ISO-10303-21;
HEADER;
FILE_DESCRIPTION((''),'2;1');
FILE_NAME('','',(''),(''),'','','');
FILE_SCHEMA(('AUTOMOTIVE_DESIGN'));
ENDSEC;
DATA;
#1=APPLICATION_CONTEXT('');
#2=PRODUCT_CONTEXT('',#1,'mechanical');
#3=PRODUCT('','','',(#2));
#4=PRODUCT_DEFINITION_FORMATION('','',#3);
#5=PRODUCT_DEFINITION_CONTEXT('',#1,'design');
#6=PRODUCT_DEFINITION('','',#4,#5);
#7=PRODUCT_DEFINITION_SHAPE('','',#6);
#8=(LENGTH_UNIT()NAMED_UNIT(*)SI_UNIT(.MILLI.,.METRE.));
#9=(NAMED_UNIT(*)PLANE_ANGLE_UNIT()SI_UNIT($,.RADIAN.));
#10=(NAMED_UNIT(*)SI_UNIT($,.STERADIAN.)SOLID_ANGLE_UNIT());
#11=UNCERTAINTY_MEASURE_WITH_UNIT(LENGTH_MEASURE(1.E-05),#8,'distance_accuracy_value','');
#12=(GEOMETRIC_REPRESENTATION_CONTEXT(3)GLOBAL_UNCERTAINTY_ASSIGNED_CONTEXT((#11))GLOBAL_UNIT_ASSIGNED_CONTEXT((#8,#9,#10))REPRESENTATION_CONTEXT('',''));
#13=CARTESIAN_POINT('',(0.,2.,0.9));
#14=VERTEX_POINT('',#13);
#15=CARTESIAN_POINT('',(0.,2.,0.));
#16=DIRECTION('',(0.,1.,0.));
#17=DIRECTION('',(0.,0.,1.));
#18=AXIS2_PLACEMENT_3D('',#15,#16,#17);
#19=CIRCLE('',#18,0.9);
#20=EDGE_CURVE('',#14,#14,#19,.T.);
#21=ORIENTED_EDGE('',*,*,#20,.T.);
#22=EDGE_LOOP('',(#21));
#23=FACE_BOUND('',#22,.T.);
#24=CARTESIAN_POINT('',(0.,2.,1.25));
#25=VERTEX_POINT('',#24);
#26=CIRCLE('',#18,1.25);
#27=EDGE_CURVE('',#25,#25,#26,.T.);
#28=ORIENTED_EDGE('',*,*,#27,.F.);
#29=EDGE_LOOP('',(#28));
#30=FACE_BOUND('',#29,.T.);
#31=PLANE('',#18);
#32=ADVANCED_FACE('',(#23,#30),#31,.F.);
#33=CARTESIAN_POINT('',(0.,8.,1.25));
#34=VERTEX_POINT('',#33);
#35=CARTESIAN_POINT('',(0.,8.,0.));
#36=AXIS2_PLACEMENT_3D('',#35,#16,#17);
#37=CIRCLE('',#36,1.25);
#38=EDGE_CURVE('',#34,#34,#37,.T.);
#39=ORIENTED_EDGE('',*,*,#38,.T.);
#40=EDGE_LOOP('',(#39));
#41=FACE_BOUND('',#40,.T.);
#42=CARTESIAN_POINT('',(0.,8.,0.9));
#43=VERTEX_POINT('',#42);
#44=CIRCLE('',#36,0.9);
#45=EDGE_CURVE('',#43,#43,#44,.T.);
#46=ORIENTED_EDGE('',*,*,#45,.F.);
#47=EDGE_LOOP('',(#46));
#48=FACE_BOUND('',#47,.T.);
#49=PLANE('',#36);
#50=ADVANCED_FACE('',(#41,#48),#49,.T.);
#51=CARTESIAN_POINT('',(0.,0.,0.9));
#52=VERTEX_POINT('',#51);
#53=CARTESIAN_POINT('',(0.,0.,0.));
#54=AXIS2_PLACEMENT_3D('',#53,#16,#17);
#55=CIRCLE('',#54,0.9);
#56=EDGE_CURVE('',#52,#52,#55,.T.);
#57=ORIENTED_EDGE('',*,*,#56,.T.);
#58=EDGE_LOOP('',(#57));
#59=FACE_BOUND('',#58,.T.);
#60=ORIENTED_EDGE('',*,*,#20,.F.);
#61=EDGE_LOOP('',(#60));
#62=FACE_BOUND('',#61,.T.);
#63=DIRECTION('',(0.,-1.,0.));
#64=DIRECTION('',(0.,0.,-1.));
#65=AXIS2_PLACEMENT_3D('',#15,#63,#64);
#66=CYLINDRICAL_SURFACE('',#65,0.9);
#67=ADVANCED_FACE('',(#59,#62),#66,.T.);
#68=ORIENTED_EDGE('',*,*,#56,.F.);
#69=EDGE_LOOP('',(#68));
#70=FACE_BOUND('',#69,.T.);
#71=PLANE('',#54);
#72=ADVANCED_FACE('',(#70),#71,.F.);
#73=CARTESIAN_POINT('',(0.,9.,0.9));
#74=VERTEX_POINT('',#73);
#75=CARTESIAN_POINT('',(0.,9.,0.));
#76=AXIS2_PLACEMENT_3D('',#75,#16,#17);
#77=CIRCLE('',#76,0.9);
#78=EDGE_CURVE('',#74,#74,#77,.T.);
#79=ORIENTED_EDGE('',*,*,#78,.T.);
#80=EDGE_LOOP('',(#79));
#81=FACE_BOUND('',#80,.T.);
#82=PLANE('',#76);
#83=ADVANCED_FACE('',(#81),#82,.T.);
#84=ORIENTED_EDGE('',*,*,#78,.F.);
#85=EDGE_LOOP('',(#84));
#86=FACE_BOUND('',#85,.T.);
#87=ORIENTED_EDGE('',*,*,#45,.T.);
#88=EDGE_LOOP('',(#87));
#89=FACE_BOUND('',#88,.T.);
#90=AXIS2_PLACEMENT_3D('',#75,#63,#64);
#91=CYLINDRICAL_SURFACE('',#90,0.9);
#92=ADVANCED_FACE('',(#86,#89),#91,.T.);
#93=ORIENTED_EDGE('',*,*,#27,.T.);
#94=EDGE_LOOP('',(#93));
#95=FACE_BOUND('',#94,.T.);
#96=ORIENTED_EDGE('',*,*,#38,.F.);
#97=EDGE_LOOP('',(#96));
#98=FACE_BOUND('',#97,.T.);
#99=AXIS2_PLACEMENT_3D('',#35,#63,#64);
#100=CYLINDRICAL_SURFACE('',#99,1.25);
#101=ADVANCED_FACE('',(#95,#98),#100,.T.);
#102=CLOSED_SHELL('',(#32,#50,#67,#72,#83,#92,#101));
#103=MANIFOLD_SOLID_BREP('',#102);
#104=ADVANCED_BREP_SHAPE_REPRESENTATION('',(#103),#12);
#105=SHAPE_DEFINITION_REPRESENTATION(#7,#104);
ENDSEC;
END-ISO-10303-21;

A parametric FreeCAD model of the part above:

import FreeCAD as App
import Part
import Sketcher

V = App.Vector
Q = App.Units.Quantity

doc = App.newDocument("Part")
body = doc.addObject("PartDesign::Body", "Body")

# Sketch on XZ plane
sketch1 = doc.addObject("Sketcher::SketchObject", "Sketch")
body.addObject(sketch1)
sketch1.AttachmentSupport = (doc.XZ_Plane, [""])
sketch1.MapMode = "FlatFace"
sketch1.addGeometry(Part.Circle(V(0, 0, 0), V(0, 0, 1), 0.9), False)
sketch1.addConstraint([
    Sketcher.Constraint("Coincident", 0, 3, -1, 1),
    Sketcher.Constraint("Diameter", 0, Q("1.8 mm")),
])
pad1 = doc.addObject("PartDesign::Pad", "Pad")
body.addObject(pad1)
pad1.Profile = sketch1
pad1.Length = 2
pad1.Reversed = True

# Sketch on XZ plane
sketch2 = doc.addObject("Sketcher::SketchObject", "Sketch001")
body.addObject(sketch2)
sketch2.AttachmentSupport = (doc.XZ_Plane, [""])
sketch2.MapMode = "FlatFace"
sketch2.AttachmentOffset = App.Placement(V(0, 0, -2), App.Rotation())
sketch2.addGeometry(Part.Circle(V(0, 0, 0), V(0, 0, 1), 1.2), False)
sketch2.addConstraint([
    Sketcher.Constraint("Coincident", 0, 3, -1, 1),
    Sketcher.Constraint("Diameter", 0, Q("2.5 mm")),
])
pad2 = doc.addObject("PartDesign::Pad", "Pad001")
body.addObject(pad2)
pad2.Profile = sketch2
pad2.Length = 6
pad2.Reversed = True

# Sketch on XZ plane
sketch3 = doc.addObject("Sketcher::SketchObject", "Sketch002")
body.addObject(sketch3)
sketch3.AttachmentSupport = (doc.XZ_Plane, [""])
sketch3.MapMode = "FlatFace"
sketch3.AttachmentOffset = App.Placement(V(0, 0, -8), App.Rotation())
sketch3.addGeometry(Part.Circle(V(0, 0, 0), V(0, 0, 1), 0.9), False)
sketch3.addConstraint([
    Sketcher.Constraint("Coincident", 0, 3, -1, 1),
    Sketcher.Constraint("Diameter", 0, Q("1.8 mm")),
])
pad3 = doc.addObject("PartDesign::Pad", "Pad002")
body.addObject(pad3)
pad3.Profile = sketch3
pad3.Length = 1
pad3.Reversed = True

doc.recompute()
